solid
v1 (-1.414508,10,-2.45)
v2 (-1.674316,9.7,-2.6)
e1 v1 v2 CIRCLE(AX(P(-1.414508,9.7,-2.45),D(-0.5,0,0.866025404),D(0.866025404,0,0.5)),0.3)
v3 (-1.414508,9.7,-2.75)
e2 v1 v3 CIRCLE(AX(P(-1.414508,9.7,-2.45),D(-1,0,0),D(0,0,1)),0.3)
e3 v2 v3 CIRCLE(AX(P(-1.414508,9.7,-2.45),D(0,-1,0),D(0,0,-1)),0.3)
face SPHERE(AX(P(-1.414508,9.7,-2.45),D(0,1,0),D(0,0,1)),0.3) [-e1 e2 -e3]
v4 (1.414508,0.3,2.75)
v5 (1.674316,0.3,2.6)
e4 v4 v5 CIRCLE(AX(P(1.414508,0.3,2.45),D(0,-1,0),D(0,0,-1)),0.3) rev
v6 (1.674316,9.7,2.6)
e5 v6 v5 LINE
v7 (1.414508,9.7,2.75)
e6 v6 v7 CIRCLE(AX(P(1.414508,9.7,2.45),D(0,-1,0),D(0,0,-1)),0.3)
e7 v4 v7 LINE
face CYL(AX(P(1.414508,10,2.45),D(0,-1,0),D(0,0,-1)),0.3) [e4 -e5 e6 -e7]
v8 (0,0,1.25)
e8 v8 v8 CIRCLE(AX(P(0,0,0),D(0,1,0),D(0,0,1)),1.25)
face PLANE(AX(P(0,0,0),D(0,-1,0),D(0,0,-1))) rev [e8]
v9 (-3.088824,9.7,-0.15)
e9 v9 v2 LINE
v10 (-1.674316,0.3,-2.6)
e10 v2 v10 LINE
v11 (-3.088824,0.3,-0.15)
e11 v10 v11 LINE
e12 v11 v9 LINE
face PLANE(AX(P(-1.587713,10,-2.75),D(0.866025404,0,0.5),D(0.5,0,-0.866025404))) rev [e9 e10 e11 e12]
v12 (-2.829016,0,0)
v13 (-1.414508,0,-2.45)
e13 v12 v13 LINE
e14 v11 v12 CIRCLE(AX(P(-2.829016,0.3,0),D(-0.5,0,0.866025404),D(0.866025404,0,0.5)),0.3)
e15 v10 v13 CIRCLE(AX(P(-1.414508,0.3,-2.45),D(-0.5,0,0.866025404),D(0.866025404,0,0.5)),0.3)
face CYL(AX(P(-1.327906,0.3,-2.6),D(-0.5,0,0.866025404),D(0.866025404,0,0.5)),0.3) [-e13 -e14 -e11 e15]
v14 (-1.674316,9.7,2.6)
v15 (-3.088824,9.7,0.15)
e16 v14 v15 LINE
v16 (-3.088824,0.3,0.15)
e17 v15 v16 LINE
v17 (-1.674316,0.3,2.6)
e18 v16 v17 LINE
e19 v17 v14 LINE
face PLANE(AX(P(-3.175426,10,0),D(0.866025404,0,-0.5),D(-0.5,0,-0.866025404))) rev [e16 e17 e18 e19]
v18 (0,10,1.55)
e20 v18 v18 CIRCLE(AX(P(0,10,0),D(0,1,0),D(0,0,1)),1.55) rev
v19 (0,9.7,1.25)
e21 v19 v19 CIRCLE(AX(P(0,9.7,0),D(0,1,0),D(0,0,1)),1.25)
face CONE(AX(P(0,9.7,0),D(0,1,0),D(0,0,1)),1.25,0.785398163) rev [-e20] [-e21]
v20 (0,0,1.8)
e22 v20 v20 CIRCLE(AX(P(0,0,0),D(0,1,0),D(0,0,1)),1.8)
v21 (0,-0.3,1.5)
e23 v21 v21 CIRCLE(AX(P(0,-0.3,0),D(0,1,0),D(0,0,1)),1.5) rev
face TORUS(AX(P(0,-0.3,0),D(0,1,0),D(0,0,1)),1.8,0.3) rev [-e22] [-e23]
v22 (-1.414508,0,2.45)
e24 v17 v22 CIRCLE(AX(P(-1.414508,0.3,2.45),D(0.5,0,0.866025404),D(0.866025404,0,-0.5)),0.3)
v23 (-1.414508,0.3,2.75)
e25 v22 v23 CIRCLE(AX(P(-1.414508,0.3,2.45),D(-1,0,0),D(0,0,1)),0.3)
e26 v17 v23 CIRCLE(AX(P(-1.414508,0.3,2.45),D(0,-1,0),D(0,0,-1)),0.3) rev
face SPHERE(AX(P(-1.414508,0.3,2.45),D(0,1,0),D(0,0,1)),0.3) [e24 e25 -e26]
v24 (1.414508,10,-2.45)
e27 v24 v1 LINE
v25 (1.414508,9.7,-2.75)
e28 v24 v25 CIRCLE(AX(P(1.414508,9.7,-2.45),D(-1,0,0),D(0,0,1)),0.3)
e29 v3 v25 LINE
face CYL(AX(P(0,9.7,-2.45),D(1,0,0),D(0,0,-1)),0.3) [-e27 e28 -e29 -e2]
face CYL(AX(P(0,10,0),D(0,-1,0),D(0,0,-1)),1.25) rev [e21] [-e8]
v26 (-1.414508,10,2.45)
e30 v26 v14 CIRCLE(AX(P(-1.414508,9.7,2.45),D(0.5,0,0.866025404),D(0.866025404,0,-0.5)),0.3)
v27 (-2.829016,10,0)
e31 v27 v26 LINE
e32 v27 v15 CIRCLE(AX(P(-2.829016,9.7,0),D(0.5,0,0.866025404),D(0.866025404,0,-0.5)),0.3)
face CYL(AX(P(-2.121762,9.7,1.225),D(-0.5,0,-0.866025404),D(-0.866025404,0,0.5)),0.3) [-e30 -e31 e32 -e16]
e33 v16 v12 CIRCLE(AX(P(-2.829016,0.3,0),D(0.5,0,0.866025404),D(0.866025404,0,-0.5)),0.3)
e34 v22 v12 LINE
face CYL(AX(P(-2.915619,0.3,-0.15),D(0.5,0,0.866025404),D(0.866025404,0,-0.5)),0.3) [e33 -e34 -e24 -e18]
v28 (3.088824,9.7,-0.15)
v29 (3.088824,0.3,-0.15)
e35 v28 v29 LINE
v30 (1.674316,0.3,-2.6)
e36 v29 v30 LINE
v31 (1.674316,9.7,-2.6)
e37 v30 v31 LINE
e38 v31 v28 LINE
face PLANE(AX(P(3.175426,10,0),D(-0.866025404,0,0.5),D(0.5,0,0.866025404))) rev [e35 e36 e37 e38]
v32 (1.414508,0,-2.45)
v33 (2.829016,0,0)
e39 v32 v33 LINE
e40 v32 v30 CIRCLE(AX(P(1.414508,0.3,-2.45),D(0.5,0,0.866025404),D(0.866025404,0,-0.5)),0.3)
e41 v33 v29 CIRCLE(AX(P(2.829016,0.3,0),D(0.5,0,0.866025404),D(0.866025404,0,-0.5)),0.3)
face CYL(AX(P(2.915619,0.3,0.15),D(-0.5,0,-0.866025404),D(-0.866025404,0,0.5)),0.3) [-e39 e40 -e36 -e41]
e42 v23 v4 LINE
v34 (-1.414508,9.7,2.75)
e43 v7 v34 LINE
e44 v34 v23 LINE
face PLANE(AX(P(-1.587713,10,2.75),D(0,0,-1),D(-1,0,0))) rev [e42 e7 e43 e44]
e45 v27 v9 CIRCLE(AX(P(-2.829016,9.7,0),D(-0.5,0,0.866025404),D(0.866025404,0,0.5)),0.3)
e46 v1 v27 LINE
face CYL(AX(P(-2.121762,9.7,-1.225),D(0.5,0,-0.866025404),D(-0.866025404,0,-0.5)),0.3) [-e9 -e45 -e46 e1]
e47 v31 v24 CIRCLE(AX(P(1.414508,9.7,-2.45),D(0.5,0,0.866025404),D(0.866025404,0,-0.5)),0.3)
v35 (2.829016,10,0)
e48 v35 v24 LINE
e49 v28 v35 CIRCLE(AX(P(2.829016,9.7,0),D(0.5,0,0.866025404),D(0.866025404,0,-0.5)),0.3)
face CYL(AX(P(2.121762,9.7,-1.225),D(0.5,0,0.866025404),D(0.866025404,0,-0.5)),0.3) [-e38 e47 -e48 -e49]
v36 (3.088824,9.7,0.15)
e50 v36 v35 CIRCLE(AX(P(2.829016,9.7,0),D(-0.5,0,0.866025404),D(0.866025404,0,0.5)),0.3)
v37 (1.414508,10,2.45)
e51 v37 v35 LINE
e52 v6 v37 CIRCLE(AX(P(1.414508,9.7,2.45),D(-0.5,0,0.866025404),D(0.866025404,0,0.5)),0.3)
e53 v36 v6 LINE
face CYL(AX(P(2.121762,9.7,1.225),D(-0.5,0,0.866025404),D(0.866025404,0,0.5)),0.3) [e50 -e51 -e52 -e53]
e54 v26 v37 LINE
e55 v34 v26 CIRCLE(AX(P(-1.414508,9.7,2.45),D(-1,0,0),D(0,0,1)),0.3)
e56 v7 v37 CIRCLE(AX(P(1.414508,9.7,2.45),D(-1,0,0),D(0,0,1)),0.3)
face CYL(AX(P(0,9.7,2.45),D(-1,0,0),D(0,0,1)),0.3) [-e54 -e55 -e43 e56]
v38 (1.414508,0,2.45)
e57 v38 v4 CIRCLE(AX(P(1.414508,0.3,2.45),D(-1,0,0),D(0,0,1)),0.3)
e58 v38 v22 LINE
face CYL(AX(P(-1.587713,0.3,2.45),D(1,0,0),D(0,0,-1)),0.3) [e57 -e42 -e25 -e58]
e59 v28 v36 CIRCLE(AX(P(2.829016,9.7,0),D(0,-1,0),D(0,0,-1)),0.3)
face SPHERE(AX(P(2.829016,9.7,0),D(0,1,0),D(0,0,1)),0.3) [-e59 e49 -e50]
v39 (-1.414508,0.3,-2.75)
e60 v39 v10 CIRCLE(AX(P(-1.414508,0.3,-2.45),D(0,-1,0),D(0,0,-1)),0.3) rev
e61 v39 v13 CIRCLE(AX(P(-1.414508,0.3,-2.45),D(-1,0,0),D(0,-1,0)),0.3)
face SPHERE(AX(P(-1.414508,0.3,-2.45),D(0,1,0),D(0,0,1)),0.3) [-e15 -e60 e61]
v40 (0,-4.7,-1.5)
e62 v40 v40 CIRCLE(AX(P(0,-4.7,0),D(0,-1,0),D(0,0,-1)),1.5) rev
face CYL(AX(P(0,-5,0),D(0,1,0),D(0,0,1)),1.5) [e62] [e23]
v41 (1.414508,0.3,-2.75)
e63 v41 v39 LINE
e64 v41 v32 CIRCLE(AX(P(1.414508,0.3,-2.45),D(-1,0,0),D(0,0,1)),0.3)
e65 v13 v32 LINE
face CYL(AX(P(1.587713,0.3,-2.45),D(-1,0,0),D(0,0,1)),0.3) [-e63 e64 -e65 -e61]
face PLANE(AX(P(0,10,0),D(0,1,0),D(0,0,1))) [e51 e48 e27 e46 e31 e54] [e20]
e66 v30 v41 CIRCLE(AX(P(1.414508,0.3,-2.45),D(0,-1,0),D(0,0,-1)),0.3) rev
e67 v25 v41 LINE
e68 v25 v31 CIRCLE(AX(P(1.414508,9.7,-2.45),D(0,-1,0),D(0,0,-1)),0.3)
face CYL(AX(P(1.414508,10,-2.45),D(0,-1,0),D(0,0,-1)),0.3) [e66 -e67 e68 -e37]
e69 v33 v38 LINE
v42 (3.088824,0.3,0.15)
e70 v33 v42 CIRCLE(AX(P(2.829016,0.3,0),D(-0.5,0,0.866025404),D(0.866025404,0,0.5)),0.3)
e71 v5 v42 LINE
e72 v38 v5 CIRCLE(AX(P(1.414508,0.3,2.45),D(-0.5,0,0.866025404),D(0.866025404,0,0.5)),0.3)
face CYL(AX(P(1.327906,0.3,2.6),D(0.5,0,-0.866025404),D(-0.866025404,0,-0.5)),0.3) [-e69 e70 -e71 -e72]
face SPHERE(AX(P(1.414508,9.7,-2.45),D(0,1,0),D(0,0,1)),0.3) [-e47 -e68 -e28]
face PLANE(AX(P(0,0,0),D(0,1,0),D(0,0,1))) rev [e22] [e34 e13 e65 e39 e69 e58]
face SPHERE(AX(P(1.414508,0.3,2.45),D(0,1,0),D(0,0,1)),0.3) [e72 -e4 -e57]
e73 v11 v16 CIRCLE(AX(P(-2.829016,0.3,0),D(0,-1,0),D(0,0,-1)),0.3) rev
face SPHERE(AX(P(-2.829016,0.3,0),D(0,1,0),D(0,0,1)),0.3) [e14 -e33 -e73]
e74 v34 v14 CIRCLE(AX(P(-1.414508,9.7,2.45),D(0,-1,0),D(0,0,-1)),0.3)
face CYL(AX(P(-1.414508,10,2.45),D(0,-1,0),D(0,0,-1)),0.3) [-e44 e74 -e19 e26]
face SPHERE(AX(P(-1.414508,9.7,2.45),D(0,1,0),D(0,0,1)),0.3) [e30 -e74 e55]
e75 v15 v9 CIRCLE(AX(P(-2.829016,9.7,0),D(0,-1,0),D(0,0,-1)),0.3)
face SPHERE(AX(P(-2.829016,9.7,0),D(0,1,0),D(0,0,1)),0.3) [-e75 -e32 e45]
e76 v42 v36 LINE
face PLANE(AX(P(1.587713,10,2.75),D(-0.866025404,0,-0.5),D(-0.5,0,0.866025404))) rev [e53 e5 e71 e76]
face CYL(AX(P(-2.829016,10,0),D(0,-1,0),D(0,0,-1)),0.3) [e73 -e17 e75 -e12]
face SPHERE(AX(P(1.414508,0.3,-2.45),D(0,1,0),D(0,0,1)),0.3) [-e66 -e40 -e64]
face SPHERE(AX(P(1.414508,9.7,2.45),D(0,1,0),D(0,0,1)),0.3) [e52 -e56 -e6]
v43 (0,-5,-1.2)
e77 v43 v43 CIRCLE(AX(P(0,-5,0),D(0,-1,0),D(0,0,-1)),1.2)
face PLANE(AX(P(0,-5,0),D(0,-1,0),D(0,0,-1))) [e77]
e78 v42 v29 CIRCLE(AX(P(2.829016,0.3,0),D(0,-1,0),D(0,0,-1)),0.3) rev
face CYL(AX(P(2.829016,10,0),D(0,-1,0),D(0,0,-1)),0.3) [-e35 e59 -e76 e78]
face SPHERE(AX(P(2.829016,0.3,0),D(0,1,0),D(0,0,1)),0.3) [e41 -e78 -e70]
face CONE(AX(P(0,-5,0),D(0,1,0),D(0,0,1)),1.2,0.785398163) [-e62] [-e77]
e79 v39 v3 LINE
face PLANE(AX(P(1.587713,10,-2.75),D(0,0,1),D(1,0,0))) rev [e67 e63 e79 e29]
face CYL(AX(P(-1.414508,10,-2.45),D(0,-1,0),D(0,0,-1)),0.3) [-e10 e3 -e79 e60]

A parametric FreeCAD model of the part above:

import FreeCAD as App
import Part
import Sketcher
Q = App.Units.Quantity


def edges_at(feature, points):
    """Names of the edges that pass closest to the given points."""
    edges = feature.Shape.Edges
    near = lambda p: min(range(len(edges)), key=lambda i: edges[i].distToShape(Part.Vertex(*p))[0])
    return sorted({f"Edge{near(p) + 1}" for p in points})

doc = App.newDocument("Part")
params = doc.addObject("Spreadsheet::Sheet", "Params")
for row, (alias, value) in enumerate([
    ("sketch1_diameter", "2.5 mm"),
    ("pad1_length", "10 mm"),
    ("fillet_radius", "0.3 mm"),
    ("fillet2_radius", "0.3 mm"),
    ("sketch2_diameter", "3 mm"),
    ("pad2_length", "5 mm"),
    ("chamfer_size", "0.3 mm"),
    ("fillet3_radius", "0.3 mm"),
], start=1):
    params.set(f"A{row}", alias)
    params.set(f"B{row}", "=" + value)
    params.setAlias(f"B{row}", alias)

body = doc.addObject("PartDesign::Body", "Body")

sketch1 = doc.addObject("Sketcher::SketchObject", "Sketch")
body.addObject(sketch1)
sketch1.AttachmentSupport = (doc.XZ_Plane, [""])
sketch1.MapMode = "FlatFace"
sketch1.addGeometry([
    Part.LineSegment(App.Vector(-1.6, -2.8, 0), App.Vector(-3.2, 0, 0)),
    Part.LineSegment(App.Vector(-3.2, 0, 0), App.Vector(-1.6, 2.8, 0)),
    Part.LineSegment(App.Vector(-1.6, 2.8, 0), App.Vector(1.6, 2.8, 0)),
    Part.LineSegment(App.Vector(1.6, 2.8, 0), App.Vector(3.2, 0, 0)),
    Part.LineSegment(App.Vector(3.2, 0, 0), App.Vector(1.6, -2.8, 0)),
    Part.LineSegment(App.Vector(1.6, -2.8, 0), App.Vector(-1.6, -2.8, 0)),
    Part.Circle(App.Vector(0, 0, 0), App.Vector(0, 0, 1), 1.2),
], False)
sketch1.addConstraint([
    Sketcher.Constraint("Coincident", 0, 2, 1, 1),
    Sketcher.Constraint("Coincident", 1, 2, 2, 1),
    Sketcher.Constraint("Coincident", 2, 2, 3, 1),
    Sketcher.Constraint("Coincident", 3, 2, 4, 1),
    Sketcher.Constraint("Coincident", 4, 2, 5, 1),
    Sketcher.Constraint("Coincident", 5, 2, 0, 1),
    Sketcher.Constraint("Horizontal", 2),
    Sketcher.Constraint("Horizontal", 5),
    Sketcher.Constraint("Coincident", 6, 3, -1, 1),
    Sketcher.Constraint("Symmetric", 0, 2, 3, 2, -1, 1),
    Sketcher.Constraint("Symmetric", 1, 2, 4, 2, -1, 1),
    Sketcher.Constraint("PointOnObject", 0, 2, -1),
    Sketcher.Constraint("Parallel", 0, 3),
    Sketcher.Constraint("Vertical", 2, 2, 4, 2),
    Sketcher.Constraint("Diameter", 6, 2.5),
    Sketcher.Constraint("Angle", 0, Q("120 deg")),
    Sketcher.Constraint("DistanceY", 4, 2, 2, 2, 5.5),
    Sketcher.Constraint("DistanceX", 2, 1, 2, 2, 3.175426),
])
sketch1.setExpression("Constraints[14]", "Params.sketch1_diameter")
pad1 = doc.addObject("PartDesign::Pad", "Pad")
body.addObject(pad1)
pad1.Profile = sketch1
pad1.setExpression("Length", "Params.pad1_length")
pad1.Reversed = True
doc.recompute()

fillet = doc.addObject("PartDesign::Fillet", "Fillet")
body.addObject(fillet)
fillet.Base = (pad1, edges_at(pad1, [
    (1.588, 5, -2.75),
    (3.175, 5, 0),
    (1.588, 5, 2.75),
    (-1.588, 5, 2.75),
    (-3.175, 5, 0),
    (-1.588, 5, -2.75),
]))
fillet.setExpression("Radius", "Params.fillet_radius")
doc.recompute()

fillet2 = doc.addObject("PartDesign::Fillet", "Fillet001")
body.addObject(fillet2)
fillet2.Base = (fillet, edges_at(fillet, [
    (0, 0, -2.75),
    (0, 10, -2.75),
    (2.382, 0, -1.375),
    (2.382, 0, 1.375),
    (0, 0, 2.75),
    (-2.382, 0, 1.375),
    (-2.382, 0, -1.375),
    (1.565, 0, 2.71),
    (-1.565, 0, 2.71),
    (-3.129, 0, 0),
    (-1.565, 0, -2.71),
    (3.129, 0, 0),
    (1.565, 0, -2.71),
    (2.382, 10, -1.375),
    (-2.382, 10, -1.375),
    (-2.382, 10, 1.375),
    (0, 10, 2.75),
    (2.382, 10, 1.375),
    (1.565, 10, 2.71),
    (-1.565, 10, 2.71),
    (-3.129, 10, 0),
    (-1.565, 10, -2.71),
    (3.129, 10, 0),
    (1.565, 10, -2.71),
]))
fillet2.setExpression("Radius", "Params.fillet2_radius")

sketch2 = doc.addObject("Sketcher::SketchObject", "Sketch001")
body.addObject(sketch2)
sketch2.AttachmentSupport = (doc.XZ_Plane, [""])
sketch2.MapMode = "FlatFace"
sketch2.addGeometry(Part.Circle(App.Vector(0, 0, 0), App.Vector(0, 0, 1), 1.5), False)
sketch2.addConstraint([
    Sketcher.Constraint("Coincident", 0, 3, -1, 1),
    Sketcher.Constraint("Diameter", 0, 3.0),
])
sketch2.setExpression("Constraints[1]", "Params.sketch2_diameter")
pad2 = doc.addObject("PartDesign::Pad", "Pad001")
body.addObject(pad2)
pad2.Profile = sketch2
pad2.setExpression("Length", "Params.pad2_length")
doc.recompute()

chamfer = doc.addObject("PartDesign::Chamfer", "Chamfer")
body.addObject(chamfer)
chamfer.Base = (pad2, edges_at(pad2, [(0, -5, -1.5), (0, 10, -1.25)]))
chamfer.setExpression("Size", "Params.chamfer_size")
doc.recompute()

fillet3 = doc.addObject("PartDesign::Fillet", "Fillet002")
body.addObject(fillet3)
fillet3.Base = (chamfer, edges_at(chamfer, [(0, 0, -1.5)]))
fillet3.setExpression("Radius", "Params.fillet3_radius")

doc.recompute()
